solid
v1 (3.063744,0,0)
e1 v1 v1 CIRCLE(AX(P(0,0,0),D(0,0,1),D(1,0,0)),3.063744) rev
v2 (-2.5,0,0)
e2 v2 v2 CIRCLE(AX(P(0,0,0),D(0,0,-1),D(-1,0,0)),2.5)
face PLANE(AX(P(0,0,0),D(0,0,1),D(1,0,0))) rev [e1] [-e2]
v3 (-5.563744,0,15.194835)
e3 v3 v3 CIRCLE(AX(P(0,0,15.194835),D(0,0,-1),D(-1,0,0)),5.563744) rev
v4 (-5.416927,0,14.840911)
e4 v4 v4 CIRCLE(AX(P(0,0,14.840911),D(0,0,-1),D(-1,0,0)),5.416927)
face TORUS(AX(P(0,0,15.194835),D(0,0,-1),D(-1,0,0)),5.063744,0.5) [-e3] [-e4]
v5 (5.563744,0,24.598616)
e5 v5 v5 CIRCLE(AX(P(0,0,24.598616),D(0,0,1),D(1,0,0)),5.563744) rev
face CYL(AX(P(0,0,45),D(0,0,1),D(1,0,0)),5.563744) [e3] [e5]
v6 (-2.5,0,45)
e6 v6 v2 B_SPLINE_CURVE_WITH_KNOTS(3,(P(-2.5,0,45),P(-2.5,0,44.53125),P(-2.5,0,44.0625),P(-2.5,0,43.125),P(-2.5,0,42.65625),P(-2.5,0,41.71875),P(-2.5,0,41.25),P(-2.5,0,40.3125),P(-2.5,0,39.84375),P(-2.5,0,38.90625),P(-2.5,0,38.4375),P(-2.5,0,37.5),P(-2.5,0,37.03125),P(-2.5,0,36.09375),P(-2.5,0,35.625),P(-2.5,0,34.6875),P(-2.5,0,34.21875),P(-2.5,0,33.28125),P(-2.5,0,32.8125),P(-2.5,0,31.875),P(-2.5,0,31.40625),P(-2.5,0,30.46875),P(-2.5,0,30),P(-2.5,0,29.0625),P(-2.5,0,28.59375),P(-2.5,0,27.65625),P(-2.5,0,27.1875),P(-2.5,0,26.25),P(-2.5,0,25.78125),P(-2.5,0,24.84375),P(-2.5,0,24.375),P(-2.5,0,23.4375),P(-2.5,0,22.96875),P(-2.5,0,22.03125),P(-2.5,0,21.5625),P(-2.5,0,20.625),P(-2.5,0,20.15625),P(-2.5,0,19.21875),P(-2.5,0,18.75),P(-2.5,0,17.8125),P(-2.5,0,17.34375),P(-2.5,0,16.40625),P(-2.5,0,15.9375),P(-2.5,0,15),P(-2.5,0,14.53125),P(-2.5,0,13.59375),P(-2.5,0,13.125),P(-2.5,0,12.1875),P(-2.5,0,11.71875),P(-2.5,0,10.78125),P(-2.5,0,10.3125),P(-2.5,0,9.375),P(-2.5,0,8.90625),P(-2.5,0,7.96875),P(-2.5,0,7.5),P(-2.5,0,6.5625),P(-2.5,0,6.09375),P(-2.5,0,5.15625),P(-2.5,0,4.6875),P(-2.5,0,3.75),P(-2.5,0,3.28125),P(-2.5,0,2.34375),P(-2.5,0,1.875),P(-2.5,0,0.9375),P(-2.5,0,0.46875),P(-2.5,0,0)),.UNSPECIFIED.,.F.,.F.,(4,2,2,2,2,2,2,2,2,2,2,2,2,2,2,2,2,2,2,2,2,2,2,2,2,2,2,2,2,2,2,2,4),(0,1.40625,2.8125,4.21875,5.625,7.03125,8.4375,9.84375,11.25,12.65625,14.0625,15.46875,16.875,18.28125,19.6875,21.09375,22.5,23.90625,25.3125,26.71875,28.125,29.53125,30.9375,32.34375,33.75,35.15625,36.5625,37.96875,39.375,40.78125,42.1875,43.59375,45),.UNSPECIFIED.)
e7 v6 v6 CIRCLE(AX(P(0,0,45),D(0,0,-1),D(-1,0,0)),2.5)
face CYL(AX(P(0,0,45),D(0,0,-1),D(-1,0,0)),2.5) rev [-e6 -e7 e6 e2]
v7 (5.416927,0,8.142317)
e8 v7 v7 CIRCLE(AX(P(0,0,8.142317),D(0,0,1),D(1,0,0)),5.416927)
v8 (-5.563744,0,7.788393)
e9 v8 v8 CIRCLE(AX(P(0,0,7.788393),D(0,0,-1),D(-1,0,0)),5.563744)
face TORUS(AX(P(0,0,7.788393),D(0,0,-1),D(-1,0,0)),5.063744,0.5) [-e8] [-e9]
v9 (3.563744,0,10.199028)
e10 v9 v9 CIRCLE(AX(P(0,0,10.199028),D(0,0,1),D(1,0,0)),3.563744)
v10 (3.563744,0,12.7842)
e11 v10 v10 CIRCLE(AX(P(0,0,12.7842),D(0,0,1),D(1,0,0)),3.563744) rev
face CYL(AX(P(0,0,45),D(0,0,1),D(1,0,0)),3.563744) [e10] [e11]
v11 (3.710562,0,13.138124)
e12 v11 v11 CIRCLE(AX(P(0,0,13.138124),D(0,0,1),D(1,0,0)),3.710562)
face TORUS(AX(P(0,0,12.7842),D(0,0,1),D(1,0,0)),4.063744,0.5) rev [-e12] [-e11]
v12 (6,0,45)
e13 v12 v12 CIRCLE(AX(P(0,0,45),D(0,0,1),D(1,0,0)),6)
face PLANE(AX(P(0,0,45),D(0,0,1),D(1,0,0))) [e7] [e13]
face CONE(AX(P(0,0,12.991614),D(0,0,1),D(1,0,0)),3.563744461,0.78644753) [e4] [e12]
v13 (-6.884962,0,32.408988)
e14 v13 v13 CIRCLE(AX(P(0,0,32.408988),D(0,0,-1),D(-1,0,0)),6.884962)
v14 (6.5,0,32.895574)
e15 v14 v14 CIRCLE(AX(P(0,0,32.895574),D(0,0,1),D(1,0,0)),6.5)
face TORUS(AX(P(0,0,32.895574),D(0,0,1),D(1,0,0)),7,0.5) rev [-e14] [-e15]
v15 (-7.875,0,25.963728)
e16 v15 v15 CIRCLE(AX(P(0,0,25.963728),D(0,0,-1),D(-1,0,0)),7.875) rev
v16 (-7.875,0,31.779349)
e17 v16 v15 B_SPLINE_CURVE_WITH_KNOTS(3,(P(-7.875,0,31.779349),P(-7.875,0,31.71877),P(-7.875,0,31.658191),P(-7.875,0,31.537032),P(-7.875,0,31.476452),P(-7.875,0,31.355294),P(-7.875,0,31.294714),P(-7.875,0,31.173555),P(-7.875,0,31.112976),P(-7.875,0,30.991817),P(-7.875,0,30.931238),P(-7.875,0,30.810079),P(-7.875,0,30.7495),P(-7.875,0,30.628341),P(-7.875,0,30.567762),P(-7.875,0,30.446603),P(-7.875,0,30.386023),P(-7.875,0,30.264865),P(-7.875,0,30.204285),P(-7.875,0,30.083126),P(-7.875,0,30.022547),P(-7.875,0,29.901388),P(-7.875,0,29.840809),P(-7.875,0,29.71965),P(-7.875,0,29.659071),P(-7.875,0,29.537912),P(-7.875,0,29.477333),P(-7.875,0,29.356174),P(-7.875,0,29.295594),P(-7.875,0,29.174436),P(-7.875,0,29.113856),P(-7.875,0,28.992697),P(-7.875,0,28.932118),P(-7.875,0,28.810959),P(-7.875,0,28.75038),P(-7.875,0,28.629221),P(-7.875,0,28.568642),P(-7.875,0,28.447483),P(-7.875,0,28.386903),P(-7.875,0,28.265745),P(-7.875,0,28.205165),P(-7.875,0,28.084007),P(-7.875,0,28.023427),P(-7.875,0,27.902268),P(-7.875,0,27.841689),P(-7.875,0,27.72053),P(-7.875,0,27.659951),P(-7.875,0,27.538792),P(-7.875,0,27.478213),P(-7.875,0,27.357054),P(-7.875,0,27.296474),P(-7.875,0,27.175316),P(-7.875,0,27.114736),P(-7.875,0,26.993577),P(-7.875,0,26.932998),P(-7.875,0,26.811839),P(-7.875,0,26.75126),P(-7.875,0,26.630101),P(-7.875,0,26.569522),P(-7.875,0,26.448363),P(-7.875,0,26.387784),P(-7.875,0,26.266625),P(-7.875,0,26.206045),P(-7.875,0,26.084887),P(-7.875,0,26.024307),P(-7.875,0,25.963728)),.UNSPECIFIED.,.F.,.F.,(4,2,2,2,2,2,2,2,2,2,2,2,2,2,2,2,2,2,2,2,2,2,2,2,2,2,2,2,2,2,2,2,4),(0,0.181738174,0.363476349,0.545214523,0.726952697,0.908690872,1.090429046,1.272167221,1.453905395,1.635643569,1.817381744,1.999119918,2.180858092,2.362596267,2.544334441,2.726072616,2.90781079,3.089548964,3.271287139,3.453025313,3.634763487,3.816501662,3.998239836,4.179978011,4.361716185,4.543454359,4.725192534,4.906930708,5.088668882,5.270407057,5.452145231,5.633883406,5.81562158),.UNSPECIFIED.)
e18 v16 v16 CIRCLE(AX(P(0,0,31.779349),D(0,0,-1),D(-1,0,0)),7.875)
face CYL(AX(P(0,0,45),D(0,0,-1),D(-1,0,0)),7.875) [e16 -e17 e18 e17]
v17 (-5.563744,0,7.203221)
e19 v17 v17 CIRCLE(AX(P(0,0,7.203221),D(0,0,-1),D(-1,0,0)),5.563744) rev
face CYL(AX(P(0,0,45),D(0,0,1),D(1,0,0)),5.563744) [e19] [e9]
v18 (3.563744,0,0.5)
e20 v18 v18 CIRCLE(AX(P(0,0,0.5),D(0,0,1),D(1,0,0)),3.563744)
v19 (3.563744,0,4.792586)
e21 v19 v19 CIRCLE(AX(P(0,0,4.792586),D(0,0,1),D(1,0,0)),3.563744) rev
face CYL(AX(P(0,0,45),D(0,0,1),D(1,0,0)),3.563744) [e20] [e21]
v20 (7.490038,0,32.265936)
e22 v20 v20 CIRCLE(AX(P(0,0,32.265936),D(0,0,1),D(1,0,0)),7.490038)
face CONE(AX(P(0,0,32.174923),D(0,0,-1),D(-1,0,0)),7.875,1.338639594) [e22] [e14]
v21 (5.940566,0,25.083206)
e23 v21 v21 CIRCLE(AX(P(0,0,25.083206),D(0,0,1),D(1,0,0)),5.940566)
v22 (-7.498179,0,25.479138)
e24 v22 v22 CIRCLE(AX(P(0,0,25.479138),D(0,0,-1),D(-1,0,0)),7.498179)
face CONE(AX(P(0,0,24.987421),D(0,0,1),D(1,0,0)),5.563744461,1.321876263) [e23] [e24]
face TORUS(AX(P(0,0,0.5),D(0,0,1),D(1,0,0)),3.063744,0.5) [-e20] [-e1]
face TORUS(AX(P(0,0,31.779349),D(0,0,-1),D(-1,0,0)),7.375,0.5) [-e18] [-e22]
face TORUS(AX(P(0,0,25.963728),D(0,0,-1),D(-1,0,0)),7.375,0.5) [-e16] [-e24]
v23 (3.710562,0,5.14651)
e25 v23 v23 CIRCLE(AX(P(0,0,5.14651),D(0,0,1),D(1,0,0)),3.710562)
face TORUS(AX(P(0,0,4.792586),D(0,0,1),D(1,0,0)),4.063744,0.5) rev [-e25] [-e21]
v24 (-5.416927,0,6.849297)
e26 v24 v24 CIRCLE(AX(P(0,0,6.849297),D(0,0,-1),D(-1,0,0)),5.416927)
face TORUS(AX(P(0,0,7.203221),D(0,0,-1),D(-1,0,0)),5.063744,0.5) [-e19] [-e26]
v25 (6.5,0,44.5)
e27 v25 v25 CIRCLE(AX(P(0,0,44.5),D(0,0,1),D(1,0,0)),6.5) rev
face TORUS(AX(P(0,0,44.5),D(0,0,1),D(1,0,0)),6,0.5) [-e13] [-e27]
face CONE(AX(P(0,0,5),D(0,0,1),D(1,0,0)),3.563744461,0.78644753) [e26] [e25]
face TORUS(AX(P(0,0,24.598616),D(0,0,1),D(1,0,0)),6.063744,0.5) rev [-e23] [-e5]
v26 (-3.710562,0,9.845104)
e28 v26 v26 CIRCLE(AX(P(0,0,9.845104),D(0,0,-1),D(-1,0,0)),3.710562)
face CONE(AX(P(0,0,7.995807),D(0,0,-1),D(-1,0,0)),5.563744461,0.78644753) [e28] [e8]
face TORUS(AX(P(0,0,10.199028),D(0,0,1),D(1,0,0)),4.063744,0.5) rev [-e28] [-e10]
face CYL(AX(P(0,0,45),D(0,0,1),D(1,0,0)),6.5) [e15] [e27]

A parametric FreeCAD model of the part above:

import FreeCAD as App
import Part
import Sketcher


def edges_at(feature, points):
    """Names of the edges that pass closest to the given points."""
    edges = feature.Shape.Edges
    near = lambda p: min(range(len(edges)), key=lambda i: edges[i].distToShape(Part.Vertex(*p))[0])
    return sorted({f"Edge{near(p) + 1}" for p in points})


def add_polygon(sketch, points):
    """Adds a closed chain of lines whose ends are joined by coincident constraints."""
    first, n = sketch.GeometryCount, len(points)
    for a, b in zip(points, points[1:] + points[:1]):
        sketch.addGeometry(Part.LineSegment(App.Vector(*a, 0), App.Vector(*b, 0)), False)
    for i in range(n):
        sketch.addConstraint(Sketcher.Constraint("Coincident", first + i, 2, first + (i + 1) % n, 1))

doc = App.newDocument("Part")
body = doc.addObject("PartDesign::Body", "Body")

sketch1 = doc.addObject("Sketcher::SketchObject", "Sketch")
body.addObject(sketch1)
sketch1.AttachmentSupport = (doc.XY_Plane, [""])
sketch1.MapMode = "FlatFace"
sketch1.addGeometry(Part.Circle(App.Vector(0, 0, 0), App.Vector(0, 0, 1), 8), False)
sketch1.addConstraint([
    Sketcher.Constraint("Coincident", 0, 3, -1, 1),
    Sketcher.Constraint("Diameter", 0, 15.75),
])
pad1 = doc.addObject("PartDesign::Pad", "Pad")
body.addObject(pad1)
pad1.Profile = sketch1
pad1.Length = 45

sketch2 = doc.addObject("Sketcher::SketchObject", "Sketch001")
body.addObject(sketch2)
sketch2.AttachmentSupport = (doc.XZ_Plane, [""])
sketch2.MapMode = "FlatFace"
add_polygon(sketch2, [(3.6, 13), (5.6, 15), (5.6, 25), (7.9, 25.6), (7.9, 32.2), (6.5, 32.5), (6.5, 45), (17.2, 45), (17.2, 0), (3.6, 0), (3.6, 5), (5.6, 7), (5.6, 8), (3.6, 10)])
sketch2.addConstraint([
    Sketcher.Constraint("Vertical", 1),
    Sketcher.Constraint("Vertical", 3),
    Sketcher.Constraint("Vertical", 5),
    Sketcher.Constraint("Horizontal", 6),
    Sketcher.Constraint("Vertical", 7),
    Sketcher.Constraint("Horizontal", 8),
    Sketcher.Constraint("Vertical", 9),
    Sketcher.Constraint("Vertical", 11),
    Sketcher.Constraint("Vertical", 13),
    Sketcher.Constraint("PointOnObject", 7, 2, -1),
    Sketcher.Constraint("Parallel", 0, 10),
    Sketcher.Constraint("Vertical", 1, 2, 10, 2),
    Sketcher.Constraint("Vertical", 9, 2, 12, 2),
    Sketcher.Constraint("Equal", 10, 12),
    Sketcher.Constraint("DistanceY", 1, 1, 1, 2, 10.0),
    Sketcher.Constraint("DistanceY", 7, 2, 7, 1, 45.0),
    Sketcher.Constraint("DistanceY", 9, 1, 9, 2, 5.0),
    Sketcher.Constraint("DistanceY", 11, 1, 11, 2, 1.0),
    Sketcher.Constraint("DistanceY", 13, 1, 13, 2, 3.0),
    Sketcher.Constraint("DistanceY", 3, 1, 3, 2, 6.6),
    Sketcher.Constraint("DistanceY", 5, 1, 5, 2, 12.5),
    Sketcher.Constraint("DistanceX", 8, 2, 0, 2, 2.0),
    Sketcher.Constraint("DistanceX", -1, 1, 4, 2, 6.5),
    Sketcher.Constraint("DistanceX", 6, 1, 6, 2, 10.746302),
    Sketcher.Constraint("DistanceX", -1, 1, 2, 2, 7.875),
    Sketcher.Constraint("DistanceX", 8, 2, 8, 1, 13.682557),
    Sketcher.Constraint("DistanceY", -1, 1, 0, 2, 14.987421),
    Sketcher.Constraint("Distance", 2, 2.384756),
])
groove = doc.addObject("PartDesign::Groove", "Groove")
body.addObject(groove)
groove.Profile = sketch2
groove.ReferenceAxis = (sketch2, ["V_Axis"])
groove.Angle = 360

sketch3 = doc.addObject("Sketcher::SketchObject", "Sketch002")
body.addObject(sketch3)
sketch3.AttachmentSupport = (doc.XY_Plane, [""])
sketch3.MapMode = "FlatFace"
sketch3.addGeometry(Part.Circle(App.Vector(0, 0, 0), App.Vector(0, 0, 1), 2.5), False)
sketch3.addConstraint([
    Sketcher.Constraint("Coincident", 0, 3, -1, 1),
    Sketcher.Constraint("Diameter", 0, 5.0),
])
pocket1 = doc.addObject("PartDesign::Pocket", "Pocket")
body.addObject(pocket1)
pocket1.Profile = sketch3
pocket1.Type = "ThroughAll"
pocket1.Reversed = True
doc.recompute()

fillet = doc.addObject("PartDesign::Fillet", "Fillet")
body.addObject(fillet)
fillet.Base = (pocket1, edges_at(pocket1, [
    (-3.564, 0, 5),
    (-5.564, 0, 6.996),
    (-5.564, 0, 7.996),
    (-3.564, 0, 0),
    (-3.564, 0, 9.992),
    (-3.564, 0, 12.992),
    (-5.564, 0, 14.987),
    (-5.564, 0, 24.987),
    (0, 7.875, 25.575),
    (0, 7.875, 32.175),
    (-6.5, 0, 32.5),
    (-6.5, 0, 45),
]))
fillet.Radius = 0.5

doc.recompute()
